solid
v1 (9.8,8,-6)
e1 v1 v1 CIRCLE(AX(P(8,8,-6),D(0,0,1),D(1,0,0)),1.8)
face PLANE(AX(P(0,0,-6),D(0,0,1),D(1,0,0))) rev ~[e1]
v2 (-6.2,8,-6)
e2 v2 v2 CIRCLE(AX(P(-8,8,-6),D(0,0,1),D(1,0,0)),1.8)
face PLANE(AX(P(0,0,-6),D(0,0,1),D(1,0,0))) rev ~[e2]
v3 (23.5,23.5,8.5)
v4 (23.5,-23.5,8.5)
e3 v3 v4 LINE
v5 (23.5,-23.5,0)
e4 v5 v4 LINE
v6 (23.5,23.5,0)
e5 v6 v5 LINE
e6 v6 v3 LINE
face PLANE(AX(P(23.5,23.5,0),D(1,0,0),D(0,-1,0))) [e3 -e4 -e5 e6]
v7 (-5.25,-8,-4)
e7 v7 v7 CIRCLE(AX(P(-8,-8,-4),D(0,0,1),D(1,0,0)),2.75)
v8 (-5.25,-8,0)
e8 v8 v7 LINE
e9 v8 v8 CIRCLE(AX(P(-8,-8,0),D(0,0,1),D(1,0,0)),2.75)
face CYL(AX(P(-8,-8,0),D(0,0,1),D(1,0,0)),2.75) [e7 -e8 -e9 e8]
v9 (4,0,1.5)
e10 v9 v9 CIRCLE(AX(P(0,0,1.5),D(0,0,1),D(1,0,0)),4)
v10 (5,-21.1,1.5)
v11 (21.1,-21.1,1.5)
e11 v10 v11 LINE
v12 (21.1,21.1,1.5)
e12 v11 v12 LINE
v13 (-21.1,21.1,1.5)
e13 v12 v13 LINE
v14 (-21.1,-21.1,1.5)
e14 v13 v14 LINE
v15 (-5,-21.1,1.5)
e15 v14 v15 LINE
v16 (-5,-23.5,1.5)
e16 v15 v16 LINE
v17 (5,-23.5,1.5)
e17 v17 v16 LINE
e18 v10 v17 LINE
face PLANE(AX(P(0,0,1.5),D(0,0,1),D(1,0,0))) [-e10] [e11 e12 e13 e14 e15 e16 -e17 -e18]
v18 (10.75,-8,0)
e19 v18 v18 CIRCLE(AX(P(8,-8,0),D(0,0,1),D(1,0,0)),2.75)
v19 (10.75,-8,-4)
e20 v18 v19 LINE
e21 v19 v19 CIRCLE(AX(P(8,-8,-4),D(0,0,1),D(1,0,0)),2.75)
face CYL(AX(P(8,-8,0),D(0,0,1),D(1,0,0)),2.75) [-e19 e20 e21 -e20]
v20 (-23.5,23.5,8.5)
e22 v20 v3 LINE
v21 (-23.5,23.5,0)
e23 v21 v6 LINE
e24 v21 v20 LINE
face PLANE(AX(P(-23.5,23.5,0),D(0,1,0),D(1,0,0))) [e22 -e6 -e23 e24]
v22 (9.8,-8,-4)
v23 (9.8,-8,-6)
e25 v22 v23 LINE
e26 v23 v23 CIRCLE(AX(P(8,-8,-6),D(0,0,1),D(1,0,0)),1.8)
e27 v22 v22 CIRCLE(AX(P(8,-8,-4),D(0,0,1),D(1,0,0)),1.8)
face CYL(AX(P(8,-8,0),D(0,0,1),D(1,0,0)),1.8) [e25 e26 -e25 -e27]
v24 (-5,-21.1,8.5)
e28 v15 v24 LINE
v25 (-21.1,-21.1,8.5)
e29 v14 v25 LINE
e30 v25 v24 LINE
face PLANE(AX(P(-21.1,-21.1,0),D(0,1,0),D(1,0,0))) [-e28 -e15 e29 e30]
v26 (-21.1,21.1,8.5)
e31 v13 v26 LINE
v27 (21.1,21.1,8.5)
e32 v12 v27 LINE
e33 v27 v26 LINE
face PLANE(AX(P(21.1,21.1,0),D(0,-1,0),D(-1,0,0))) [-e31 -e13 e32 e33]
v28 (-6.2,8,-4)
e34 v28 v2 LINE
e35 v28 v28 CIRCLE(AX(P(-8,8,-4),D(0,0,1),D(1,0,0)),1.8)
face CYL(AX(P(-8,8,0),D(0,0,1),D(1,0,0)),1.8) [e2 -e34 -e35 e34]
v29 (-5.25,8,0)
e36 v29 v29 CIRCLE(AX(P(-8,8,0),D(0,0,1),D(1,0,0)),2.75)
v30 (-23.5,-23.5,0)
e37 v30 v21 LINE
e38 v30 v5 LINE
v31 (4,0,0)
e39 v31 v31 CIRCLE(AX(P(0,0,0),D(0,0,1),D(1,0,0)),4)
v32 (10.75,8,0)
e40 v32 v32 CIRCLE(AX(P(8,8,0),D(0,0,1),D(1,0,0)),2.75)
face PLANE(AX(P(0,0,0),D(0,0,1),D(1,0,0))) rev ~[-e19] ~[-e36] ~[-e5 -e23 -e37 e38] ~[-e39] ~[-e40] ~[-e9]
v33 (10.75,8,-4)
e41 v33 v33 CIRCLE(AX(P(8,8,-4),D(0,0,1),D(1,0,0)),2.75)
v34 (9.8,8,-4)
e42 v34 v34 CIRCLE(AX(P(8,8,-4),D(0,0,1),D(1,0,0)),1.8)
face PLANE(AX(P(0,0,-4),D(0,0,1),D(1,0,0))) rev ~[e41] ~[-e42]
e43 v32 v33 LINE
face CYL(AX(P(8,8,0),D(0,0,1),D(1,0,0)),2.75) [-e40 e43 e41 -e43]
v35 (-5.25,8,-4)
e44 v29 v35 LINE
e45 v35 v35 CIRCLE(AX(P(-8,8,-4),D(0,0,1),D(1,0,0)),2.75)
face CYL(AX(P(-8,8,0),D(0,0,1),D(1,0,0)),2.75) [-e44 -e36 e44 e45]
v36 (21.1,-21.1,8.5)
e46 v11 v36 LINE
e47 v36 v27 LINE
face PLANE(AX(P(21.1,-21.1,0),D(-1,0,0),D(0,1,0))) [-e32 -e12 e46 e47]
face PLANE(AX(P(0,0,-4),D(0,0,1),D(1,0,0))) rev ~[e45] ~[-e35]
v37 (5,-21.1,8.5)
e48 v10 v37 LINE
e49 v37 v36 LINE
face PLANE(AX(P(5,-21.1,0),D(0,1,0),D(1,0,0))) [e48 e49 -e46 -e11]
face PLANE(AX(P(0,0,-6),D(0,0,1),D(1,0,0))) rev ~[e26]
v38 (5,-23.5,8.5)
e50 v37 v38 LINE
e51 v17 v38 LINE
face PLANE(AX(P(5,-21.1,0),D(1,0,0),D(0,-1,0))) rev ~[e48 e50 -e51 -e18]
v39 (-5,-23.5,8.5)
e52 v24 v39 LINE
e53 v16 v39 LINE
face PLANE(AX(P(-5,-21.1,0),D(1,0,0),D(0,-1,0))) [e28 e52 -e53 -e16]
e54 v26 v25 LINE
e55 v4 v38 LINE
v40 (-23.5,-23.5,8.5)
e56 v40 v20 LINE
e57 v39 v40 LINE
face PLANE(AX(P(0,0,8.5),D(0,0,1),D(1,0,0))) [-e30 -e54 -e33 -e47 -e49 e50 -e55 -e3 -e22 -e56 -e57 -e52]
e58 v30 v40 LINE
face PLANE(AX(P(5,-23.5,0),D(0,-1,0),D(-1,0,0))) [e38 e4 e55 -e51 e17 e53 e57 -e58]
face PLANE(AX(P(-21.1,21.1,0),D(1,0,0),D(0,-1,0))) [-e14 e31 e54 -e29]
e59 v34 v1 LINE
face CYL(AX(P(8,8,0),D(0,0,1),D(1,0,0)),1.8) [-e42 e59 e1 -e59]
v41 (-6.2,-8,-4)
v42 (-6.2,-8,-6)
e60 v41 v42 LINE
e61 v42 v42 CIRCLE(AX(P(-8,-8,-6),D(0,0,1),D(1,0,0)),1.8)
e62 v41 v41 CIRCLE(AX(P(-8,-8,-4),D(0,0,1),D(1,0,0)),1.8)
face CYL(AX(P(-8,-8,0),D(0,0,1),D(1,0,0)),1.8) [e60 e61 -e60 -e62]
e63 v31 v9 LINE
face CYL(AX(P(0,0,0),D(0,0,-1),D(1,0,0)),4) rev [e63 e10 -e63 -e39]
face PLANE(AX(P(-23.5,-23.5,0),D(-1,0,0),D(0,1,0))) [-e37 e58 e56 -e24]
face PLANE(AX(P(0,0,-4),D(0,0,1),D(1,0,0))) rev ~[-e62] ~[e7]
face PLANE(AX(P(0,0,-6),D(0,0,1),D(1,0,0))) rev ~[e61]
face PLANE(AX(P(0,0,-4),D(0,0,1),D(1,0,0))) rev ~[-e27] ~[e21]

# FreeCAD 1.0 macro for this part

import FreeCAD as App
import Part
import Sketcher

doc = App.newDocument("Part")
params = doc.addObject("Spreadsheet::Sheet", "Params")
for row, (alias, value) in enumerate([
    ("sketch1_width", "47 mm"),
    ("sketch1_width2", "42.2 mm"),
    ("pad1_length", "8.5 mm"),
    ("sketch2_diameter", "8 mm"),
    ("sketch2_width", "10 mm"),
    ("sketch2_width2", "42.2 mm"),
    ("sketch2_height", "2.4 mm"),
    ("pad2_length", "1.5 mm"),
    ("sketch3_diameter", "5.5 mm"),
    ("pad3_length", "4 mm"),
    ("sketch4_diameter", "3.6 mm"),
    ("pad4_length", "6 mm"),
], start=1):
    params.set(f"A{row}", alias)
    params.set(f"B{row}", "=" + value)
    params.setAlias(f"B{row}", alias)

body = doc.addObject("PartDesign::Body", "Body")

# Sketch on XY plane
sketch1 = body.newObject("Sketcher::SketchObject", "Sketch")
sketch1.AttachmentSupport = (doc.getObject("XY_Plane"), [""])
sketch1.MapMode = "FlatFace"
sketch1.addGeometry([
    Part.LineSegment(App.Vector(-5, -21.1, 0), App.Vector(-21.1, -21.1, 0)),  # 0
    Part.LineSegment(App.Vector(-21.1, -21.1, 0), App.Vector(-21.1, 21.1, 0)),  # 1
    Part.LineSegment(App.Vector(-21.1, 21.1, 0), App.Vector(21.1, 21.1, 0)),  # 2
    Part.LineSegment(App.Vector(21.1, 21.1, 0), App.Vector(21.1, -21.1, 0)),  # 3
    Part.LineSegment(App.Vector(21.1, -21.1, 0), App.Vector(5, -21.1, 0)),  # 4
    Part.LineSegment(App.Vector(5, -21.1, 0), App.Vector(5, -23.5, 0)),  # 5
    Part.LineSegment(App.Vector(5, -23.5, 0), App.Vector(23.5, -23.5, 0)),  # 6
    Part.LineSegment(App.Vector(23.5, -23.5, 0), App.Vector(23.5, 23.5, 0)),  # 7
    Part.LineSegment(App.Vector(23.5, 23.5, 0), App.Vector(-23.5, 23.5, 0)),  # 8
    Part.LineSegment(App.Vector(-23.5, 23.5, 0), App.Vector(-23.5, -23.5, 0)),  # 9
    Part.LineSegment(App.Vector(-23.5, -23.5, 0), App.Vector(-5, -23.5, 0)),  # 10
    Part.LineSegment(App.Vector(-5, -23.5, 0), App.Vector(-5, -21.1, 0)),  # 11
], False)
sketch1.addConstraint([
    Sketcher.Constraint("Coincident", 0, 2, 1, 1),
    Sketcher.Constraint("Coincident", 1, 2, 2, 1),
    Sketcher.Constraint("Coincident", 2, 2, 3, 1),
    Sketcher.Constraint("Coincident", 3, 2, 4, 1),
    Sketcher.Constraint("Coincident", 4, 2, 5, 1),
    Sketcher.Constraint("Coincident", 5, 2, 6, 1),
    Sketcher.Constraint("Coincident", 6, 2, 7, 1),
    Sketcher.Constraint("Coincident", 7, 2, 8, 1),
    Sketcher.Constraint("Coincident", 8, 2, 9, 1),
    Sketcher.Constraint("Coincident", 9, 2, 10, 1),
    Sketcher.Constraint("Coincident", 10, 2, 11, 1),
    Sketcher.Constraint("Coincident", 11, 2, 0, 1),
    Sketcher.Constraint("Horizontal", 0),
    Sketcher.Constraint("Vertical", 1),
    Sketcher.Constraint("Horizontal", 2),
    Sketcher.Constraint("Vertical", 3),
    Sketcher.Constraint("Horizontal", 4),
    Sketcher.Constraint("Vertical", 5),
    Sketcher.Constraint("Horizontal", 6),
    Sketcher.Constraint("Vertical", 7),
    Sketcher.Constraint("Horizontal", 8),
    Sketcher.Constraint("Vertical", 9),
    Sketcher.Constraint("Horizontal", 10),
    Sketcher.Constraint("Vertical", 11),
    Sketcher.Constraint("Symmetric", 0, 2, 2, 2, -1, 1),
    Sketcher.Constraint("Symmetric", 6, 2, 8, 2, -1, 1),
    Sketcher.Constraint("Symmetric", 5, 2, 10, 2, -2),
    Sketcher.Constraint("Horizontal", 0, 2, 3, 2),
    Sketcher.Constraint("Equal", 2, 1),
    Sketcher.Constraint("Equal", 8, 7),
    Sketcher.Constraint("DistanceX", 8, 2, 8, 1, 47.0),
    Sketcher.Constraint("DistanceX", 2, 1, 2, 2, 42.2),
    Sketcher.Constraint("DistanceX", -1, 1, 4, 2, 5.0),
])
sketch1.setExpression("Constraints[30]", "Params.sketch1_width")
sketch1.setExpression("Constraints[31]", "Params.sketch1_width2")
pad1 = body.newObject("PartDesign::Pad", "Pad")
pad1.Profile = sketch1
pad1.setExpression("Length", "Params.pad1_length")

# Sketch on XY plane
sketch2 = body.newObject("Sketcher::SketchObject", "Sketch001")
sketch2.AttachmentSupport = (doc.getObject("XY_Plane"), [""])
sketch2.MapMode = "FlatFace"
sketch2.addGeometry([
    Part.LineSegment(App.Vector(-21.1, 21.1, 0), App.Vector(-21.1, -21.1, 0)),  # 0
    Part.LineSegment(App.Vector(-21.1, -21.1, 0), App.Vector(-5, -21.1, 0)),  # 1
    Part.LineSegment(App.Vector(-5, -21.1, 0), App.Vector(-5, -23.5, 0)),  # 2
    Part.LineSegment(App.Vector(-5, -23.5, 0), App.Vector(5, -23.5, 0)),  # 3
    Part.LineSegment(App.Vector(5, -23.5, 0), App.Vector(5, -21.1, 0)),  # 4
    Part.LineSegment(App.Vector(5, -21.1, 0), App.Vector(21.1, -21.1, 0)),  # 5
    Part.LineSegment(App.Vector(21.1, -21.1, 0), App.Vector(21.1, 21.1, 0)),  # 6
    Part.LineSegment(App.Vector(21.1, 21.1, 0), App.Vector(-21.1, 21.1, 0)),  # 7
    Part.Circle(App.Vector(0, 0, 0), App.Vector(0, 0, 1), 4),  # 8
], False)
sketch2.addConstraint([
    Sketcher.Constraint("Coincident", 0, 2, 1, 1),
    Sketcher.Constraint("Coincident", 1, 2, 2, 1),
    Sketcher.Constraint("Coincident", 2, 2, 3, 1),
    Sketcher.Constraint("Coincident", 3, 2, 4, 1),
    Sketcher.Constraint("Coincident", 4, 2, 5, 1),
    Sketcher.Constraint("Coincident", 5, 2, 6, 1),
    Sketcher.Constraint("Coincident", 6, 2, 7, 1),
    Sketcher.Constraint("Coincident", 7, 2, 0, 1),
    Sketcher.Constraint("Vertical", 0),
    Sketcher.Constraint("Horizontal", 1),
    Sketcher.Constraint("Vertical", 2),
    Sketcher.Constraint("Horizontal", 3),
    Sketcher.Constraint("Vertical", 4),
    Sketcher.Constraint("Horizontal", 5),
    Sketcher.Constraint("Vertical", 6),
    Sketcher.Constraint("Horizontal", 7),
    Sketcher.Constraint("Coincident", 8, 3, -1, 1),
    Sketcher.Constraint("Symmetric", 0, 2, 6, 2, -1, 1),
    Sketcher.Constraint("Symmetric", 1, 2, 4, 2, -2),
    Sketcher.Constraint("Equal", 7, 0),
    Sketcher.Constraint("Diameter", 8, 8.0),
    Sketcher.Constraint("DistanceX", 3, 1, 3, 2, 10.0),
    Sketcher.Constraint("DistanceX", 7, 2, 7, 1, 42.2),
    Sketcher.Constraint("DistanceY", 2, 2, 2, 1, 2.4),
])
sketch2.setExpression("Constraints[20]", "Params.sketch2_diameter")
sketch2.setExpression("Constraints[21]", "Params.sketch2_width")
sketch2.setExpression("Constraints[22]", "Params.sketch2_width2")
sketch2.setExpression("Constraints[23]", "Params.sketch2_height")
pad2 = body.newObject("PartDesign::Pad", "Pad001")
pad2.Profile = sketch2
pad2.setExpression("Length", "Params.pad2_length")

# Sketch on XY plane
sketch3 = body.newObject("Sketcher::SketchObject", "Sketch002")
sketch3.AttachmentSupport = (doc.getObject("XY_Plane"), [""])
sketch3.MapMode = "FlatFace"
sketch3.addGeometry([
    Part.Circle(App.Vector(8, 8, 0), App.Vector(0, 0, 1), 2.8),
    Part.Circle(App.Vector(8, -8, 0), App.Vector(0, 0, 1), 2.8),
    Part.Circle(App.Vector(-8, -8, 0), App.Vector(0, 0, 1), 2.8),
    Part.Circle(App.Vector(-8, 8, 0), App.Vector(0, 0, 1), 2.8),
], False)
sketch3.addConstraint([
    Sketcher.Constraint("Equal", 0, 1),
    Sketcher.Constraint("Equal", 1, 2),
    Sketcher.Constraint("Equal", 2, 3),
    Sketcher.Constraint("Symmetric", 0, 3, 2, 3, -1, 1),
    Sketcher.Constraint("Symmetric", 1, 3, 3, 3, -1, 1),
    Sketcher.Constraint("Symmetric", 1, 3, 2, 3, -2),
    Sketcher.Constraint("Diameter", 0, 5.5),
    Sketcher.Constraint("DistanceX", -1, 1, 0, 3, 8.0),
    Sketcher.Constraint("DistanceY", -1, 1, 0, 3, 8.0),
])
sketch3.setExpression("Constraints[6]", "Params.sketch3_diameter")
pad3 = body.newObject("PartDesign::Pad", "Pad002")
pad3.Profile = sketch3
pad3.setExpression("Length", "Params.pad3_length")
pad3.Reversed = True

# Sketch on XY plane
sketch4 = body.newObject("Sketcher::SketchObject", "Sketch003")
sketch4.AttachmentSupport = (doc.getObject("XY_Plane"), [""])
sketch4.MapMode = "FlatFace"
sketch4.addGeometry([
    Part.Circle(App.Vector(8, 8, 0), App.Vector(0, 0, 1), 1.8),
    Part.Circle(App.Vector(8, -8, 0), App.Vector(0, 0, 1), 1.8),
    Part.Circle(App.Vector(-8, -8, 0), App.Vector(0, 0, 1), 1.8),
    Part.Circle(App.Vector(-8, 8, 0), App.Vector(0, 0, 1), 1.8),
], False)
sketch4.addConstraint([
    Sketcher.Constraint("Equal", 0, 1),
    Sketcher.Constraint("Equal", 1, 2),
    Sketcher.Constraint("Equal", 2, 3),
    Sketcher.Constraint("Symmetric", 0, 3, 2, 3, -1, 1),
    Sketcher.Constraint("Symmetric", 1, 3, 3, 3, -1, 1),
    Sketcher.Constraint("Symmetric", 1, 3, 2, 3, -2),
    Sketcher.Constraint("Diameter", 0, 3.6),
    Sketcher.Constraint("DistanceX", -1, 1, 0, 3, 8.0),
    Sketcher.Constraint("DistanceY", -1, 1, 0, 3, 8.0),
])
sketch4.setExpression("Constraints[6]", "Params.sketch4_diameter")
pad4 = body.newObject("PartDesign::Pad", "Pad003")
pad4.Profile = sketch4
pad4.setExpression("Length", "Params.pad4_length")
pad4.Reversed = True

doc.recompute()
